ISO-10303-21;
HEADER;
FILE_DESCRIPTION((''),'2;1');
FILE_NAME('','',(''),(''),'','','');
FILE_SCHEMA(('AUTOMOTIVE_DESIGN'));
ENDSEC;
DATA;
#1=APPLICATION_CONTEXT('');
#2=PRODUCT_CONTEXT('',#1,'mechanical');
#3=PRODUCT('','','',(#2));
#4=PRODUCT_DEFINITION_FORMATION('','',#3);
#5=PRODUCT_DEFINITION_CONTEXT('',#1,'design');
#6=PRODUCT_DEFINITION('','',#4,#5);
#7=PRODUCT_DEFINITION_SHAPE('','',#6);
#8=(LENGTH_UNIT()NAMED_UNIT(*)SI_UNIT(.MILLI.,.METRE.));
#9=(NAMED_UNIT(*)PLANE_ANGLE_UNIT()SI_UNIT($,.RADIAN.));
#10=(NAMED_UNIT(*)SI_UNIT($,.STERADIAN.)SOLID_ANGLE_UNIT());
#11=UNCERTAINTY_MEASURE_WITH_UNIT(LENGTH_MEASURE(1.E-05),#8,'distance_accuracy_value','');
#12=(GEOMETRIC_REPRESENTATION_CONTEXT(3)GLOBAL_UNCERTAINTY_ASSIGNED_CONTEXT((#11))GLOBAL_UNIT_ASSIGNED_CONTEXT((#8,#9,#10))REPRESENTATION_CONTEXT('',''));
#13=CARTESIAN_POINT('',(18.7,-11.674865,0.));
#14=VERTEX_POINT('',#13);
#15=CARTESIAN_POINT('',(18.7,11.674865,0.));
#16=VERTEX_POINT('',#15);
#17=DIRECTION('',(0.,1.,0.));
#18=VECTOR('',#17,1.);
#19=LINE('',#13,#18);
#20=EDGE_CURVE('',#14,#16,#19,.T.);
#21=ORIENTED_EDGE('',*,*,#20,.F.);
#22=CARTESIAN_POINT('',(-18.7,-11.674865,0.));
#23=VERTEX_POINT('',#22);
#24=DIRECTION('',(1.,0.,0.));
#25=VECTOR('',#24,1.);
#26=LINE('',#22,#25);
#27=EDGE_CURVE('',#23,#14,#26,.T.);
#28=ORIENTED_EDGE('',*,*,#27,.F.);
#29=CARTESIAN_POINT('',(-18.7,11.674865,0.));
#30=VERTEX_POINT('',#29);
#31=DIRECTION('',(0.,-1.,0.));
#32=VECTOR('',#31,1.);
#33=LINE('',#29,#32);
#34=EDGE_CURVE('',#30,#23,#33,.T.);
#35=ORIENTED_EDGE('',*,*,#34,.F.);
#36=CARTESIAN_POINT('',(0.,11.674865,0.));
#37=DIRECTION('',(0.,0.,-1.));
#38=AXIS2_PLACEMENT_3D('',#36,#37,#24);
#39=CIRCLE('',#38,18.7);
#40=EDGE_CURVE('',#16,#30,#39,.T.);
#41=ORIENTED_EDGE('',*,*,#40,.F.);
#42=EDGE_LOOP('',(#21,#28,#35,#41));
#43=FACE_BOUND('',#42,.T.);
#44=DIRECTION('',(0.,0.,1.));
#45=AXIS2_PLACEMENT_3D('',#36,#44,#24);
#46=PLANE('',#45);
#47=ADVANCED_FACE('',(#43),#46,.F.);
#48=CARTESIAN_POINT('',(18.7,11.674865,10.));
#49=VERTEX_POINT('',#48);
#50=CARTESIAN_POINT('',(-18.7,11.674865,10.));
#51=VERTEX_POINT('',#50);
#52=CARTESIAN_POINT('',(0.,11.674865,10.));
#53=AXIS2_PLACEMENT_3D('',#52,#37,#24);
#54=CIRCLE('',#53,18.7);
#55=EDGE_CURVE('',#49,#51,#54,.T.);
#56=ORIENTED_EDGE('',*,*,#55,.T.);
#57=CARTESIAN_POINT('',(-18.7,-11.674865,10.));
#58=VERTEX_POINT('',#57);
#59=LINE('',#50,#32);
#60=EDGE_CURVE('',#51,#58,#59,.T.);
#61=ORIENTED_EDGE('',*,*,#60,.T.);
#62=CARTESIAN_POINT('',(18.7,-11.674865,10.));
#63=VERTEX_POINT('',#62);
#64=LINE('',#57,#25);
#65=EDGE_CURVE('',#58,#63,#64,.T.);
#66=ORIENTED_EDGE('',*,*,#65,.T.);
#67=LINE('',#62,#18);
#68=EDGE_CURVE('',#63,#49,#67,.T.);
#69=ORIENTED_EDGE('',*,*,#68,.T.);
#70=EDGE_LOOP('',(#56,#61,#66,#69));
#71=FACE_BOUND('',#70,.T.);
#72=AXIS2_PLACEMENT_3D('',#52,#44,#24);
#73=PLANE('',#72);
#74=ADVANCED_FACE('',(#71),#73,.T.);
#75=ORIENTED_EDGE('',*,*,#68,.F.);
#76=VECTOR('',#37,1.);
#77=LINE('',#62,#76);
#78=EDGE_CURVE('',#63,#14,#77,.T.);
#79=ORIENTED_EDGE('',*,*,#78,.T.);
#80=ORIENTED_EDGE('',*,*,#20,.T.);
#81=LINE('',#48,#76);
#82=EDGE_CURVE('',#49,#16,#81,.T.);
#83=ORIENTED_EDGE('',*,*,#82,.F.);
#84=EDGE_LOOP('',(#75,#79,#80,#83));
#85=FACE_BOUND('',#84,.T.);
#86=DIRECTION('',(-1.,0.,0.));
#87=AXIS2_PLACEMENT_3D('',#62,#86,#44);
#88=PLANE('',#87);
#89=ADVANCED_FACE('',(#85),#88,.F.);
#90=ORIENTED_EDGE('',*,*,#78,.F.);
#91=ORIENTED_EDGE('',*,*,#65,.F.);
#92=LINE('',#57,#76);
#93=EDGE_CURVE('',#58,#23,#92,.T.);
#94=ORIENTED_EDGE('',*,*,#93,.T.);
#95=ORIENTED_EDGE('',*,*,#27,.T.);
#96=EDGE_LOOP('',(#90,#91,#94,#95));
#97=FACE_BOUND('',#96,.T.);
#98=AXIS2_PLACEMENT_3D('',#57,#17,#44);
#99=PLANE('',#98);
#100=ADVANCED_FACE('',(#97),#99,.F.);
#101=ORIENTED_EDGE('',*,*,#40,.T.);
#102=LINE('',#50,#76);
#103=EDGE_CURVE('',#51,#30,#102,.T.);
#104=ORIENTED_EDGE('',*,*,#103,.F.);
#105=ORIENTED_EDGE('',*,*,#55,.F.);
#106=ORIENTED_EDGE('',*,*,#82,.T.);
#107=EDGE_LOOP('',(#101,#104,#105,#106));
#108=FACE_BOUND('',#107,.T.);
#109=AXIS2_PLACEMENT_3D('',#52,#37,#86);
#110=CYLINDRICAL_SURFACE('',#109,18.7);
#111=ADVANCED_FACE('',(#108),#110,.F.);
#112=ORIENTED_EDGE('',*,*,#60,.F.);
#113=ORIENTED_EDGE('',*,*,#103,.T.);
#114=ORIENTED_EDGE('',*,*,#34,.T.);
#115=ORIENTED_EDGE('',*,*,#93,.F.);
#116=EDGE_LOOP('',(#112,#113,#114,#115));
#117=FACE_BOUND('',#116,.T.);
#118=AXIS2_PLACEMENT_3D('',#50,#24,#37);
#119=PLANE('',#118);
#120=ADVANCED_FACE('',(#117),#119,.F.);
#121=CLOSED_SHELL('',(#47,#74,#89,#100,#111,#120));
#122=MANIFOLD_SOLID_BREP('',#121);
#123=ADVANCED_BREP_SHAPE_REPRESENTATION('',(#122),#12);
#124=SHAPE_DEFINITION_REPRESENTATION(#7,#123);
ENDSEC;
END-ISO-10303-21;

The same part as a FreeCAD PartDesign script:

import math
import FreeCAD as App
import Part
import Sketcher
from FreeCAD import Vector

doc = App.newDocument("Part")
body = doc.addObject("PartDesign::Body", "Body")

sketch1 = doc.addObject("Sketcher::SketchObject", "Sketch")
body.addObject(sketch1)
sketch1.AttachmentSupport = (doc.XY_Plane, [""])
sketch1.MapMode = "FlatFace"
sketch1.addGeometry(Part.LineSegment(Vector(-18.7, 11.674865, 0), Vector(-18.7, -11.674865, 0)), False)
sketch1.addGeometry(Part.LineSegment(Vector(-18.7, -11.674865, 0), Vector(18.7, -11.674865, 0)), False)
sketch1.addGeometry(Part.LineSegment(Vector(18.7, -11.674865, 0), Vector(18.7, 11.674865, 0)), False)
sketch1.addGeometry(Part.ArcOfCircle(Part.Circle(Vector(0, 11.674865, 0), Vector(0, 0, 1), 18.7), math.radians(180), math.radians(360)), False)
sketch1.addConstraint(Sketcher.Constraint("Coincident", 0, 2, 1, 1))
sketch1.addConstraint(Sketcher.Constraint("Coincident", 1, 2, 2, 1))
sketch1.addConstraint(Sketcher.Constraint("Tangent", 2, 2, 3, 2))
sketch1.addConstraint(Sketcher.Constraint("Tangent", 3, 1, 0, 1))
sketch1.addConstraint(Sketcher.Constraint("Vertical", 0))
sketch1.addConstraint(Sketcher.Constraint("Horizontal", 1))
sketch1.addConstraint(Sketcher.Constraint("Vertical", 2))
sketch1.addConstraint(Sketcher.Constraint("Symmetric", 0, 2, 2, 2, -1, 1))
sketch1.addConstraint(Sketcher.Constraint("Radius", 3, 18.7))
sketch1.addConstraint(Sketcher.Constraint("DistanceY", 0, 2, 0, 1, 23.34973))
pad1 = doc.addObject("PartDesign::Pad", "Pad")
body.addObject(pad1)
pad1.Profile = sketch1
pad1.Length = 10

doc.recompute()
